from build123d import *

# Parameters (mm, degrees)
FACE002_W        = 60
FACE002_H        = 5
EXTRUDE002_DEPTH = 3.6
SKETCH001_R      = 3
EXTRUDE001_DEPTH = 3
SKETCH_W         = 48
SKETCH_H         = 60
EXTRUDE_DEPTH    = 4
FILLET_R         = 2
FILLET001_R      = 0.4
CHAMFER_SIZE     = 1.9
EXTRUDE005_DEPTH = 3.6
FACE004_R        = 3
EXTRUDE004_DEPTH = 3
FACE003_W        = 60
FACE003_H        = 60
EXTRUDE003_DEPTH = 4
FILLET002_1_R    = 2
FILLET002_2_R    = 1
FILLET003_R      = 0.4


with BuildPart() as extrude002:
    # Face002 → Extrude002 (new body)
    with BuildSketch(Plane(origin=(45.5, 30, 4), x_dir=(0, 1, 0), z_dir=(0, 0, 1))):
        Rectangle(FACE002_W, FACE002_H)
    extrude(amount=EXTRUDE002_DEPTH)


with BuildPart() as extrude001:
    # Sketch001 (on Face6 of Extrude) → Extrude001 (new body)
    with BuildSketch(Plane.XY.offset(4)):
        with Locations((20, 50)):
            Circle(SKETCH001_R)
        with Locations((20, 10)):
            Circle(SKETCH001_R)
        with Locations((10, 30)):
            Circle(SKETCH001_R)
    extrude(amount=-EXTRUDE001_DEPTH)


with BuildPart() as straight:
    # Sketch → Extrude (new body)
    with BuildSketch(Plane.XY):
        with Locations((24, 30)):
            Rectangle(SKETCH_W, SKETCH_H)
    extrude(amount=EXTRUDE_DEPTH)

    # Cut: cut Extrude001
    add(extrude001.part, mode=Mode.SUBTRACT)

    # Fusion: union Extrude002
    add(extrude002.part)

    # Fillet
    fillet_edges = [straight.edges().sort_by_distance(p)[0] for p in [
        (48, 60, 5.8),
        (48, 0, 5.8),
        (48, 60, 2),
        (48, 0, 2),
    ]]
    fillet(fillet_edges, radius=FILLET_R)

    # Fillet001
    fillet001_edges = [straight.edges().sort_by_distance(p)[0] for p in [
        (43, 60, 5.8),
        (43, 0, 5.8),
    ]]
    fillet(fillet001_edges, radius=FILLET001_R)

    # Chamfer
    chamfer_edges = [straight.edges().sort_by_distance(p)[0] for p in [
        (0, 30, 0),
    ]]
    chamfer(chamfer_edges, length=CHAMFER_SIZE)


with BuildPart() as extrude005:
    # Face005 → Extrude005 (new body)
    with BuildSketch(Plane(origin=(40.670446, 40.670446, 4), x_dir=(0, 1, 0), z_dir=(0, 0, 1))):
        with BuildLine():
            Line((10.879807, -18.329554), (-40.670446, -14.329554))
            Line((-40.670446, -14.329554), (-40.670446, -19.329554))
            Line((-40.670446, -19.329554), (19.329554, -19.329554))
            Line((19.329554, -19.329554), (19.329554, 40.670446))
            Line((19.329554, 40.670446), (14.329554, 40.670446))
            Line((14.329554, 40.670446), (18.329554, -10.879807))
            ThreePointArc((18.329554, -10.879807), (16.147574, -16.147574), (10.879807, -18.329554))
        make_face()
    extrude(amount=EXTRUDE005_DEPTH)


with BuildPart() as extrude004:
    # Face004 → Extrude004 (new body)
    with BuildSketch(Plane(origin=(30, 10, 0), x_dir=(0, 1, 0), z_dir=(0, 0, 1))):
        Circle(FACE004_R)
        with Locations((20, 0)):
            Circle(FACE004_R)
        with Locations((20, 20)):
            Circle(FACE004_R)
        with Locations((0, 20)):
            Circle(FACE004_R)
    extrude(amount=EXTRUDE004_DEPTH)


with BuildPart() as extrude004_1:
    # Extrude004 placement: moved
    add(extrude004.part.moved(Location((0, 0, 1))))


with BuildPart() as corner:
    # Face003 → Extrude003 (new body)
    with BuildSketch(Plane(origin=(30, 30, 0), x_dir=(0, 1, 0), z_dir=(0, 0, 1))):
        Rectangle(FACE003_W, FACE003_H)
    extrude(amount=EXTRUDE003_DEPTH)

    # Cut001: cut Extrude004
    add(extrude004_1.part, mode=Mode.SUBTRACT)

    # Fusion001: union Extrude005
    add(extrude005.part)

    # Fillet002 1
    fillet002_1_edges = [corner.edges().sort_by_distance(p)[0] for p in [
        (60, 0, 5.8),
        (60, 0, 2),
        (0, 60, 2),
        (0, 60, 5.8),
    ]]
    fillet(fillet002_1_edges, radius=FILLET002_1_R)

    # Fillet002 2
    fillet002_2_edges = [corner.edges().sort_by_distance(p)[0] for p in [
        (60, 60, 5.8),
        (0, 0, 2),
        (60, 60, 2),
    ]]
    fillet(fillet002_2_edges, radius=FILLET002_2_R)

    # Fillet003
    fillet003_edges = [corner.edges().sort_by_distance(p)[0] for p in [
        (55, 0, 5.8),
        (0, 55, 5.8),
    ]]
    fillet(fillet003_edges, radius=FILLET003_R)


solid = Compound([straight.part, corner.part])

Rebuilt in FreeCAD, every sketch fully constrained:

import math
import FreeCAD as App
import Part
import Sketcher
Q = App.Units.Quantity


def edges_at(feature, points):
    """Names of the edges that pass closest to the given points."""
    edges = feature.Shape.Edges
    near = lambda p: min(range(len(edges)), key=lambda i: edges[i].distToShape(Part.Vertex(*p))[0])
    return sorted({f"Edge{near(p) + 1}" for p in points})


def add_polygon(sketch, points):
    """Adds a closed chain of lines whose ends are joined by coincident constraints."""
    first, n = sketch.GeometryCount, len(points)
    for a, b in zip(points, points[1:] + points[:1]):
        sketch.addGeometry(Part.LineSegment(App.Vector(*a, 0), App.Vector(*b, 0)), False)
    for i in range(n):
        sketch.addConstraint(Sketcher.Constraint("Coincident", first + i, 2, first + (i + 1) % n, 1))

doc = App.newDocument("Part")
body = doc.addObject("PartDesign::Body", "Body")

# Sketch on XY plane
sketch1 = doc.addObject("Sketcher::SketchObject", "Sketch")
body.addObject(sketch1)
sketch1.AttachmentSupport = (doc.XY_Plane, [""])
sketch1.MapMode = "FlatFace"
sketch1.AttachmentOffset = App.Placement(App.Vector(0, 0, 4), App.Rotation())
add_polygon(sketch1, [(43, 0), (48, 0), (48, 60), (43, 60)])  # lines 0-3
sketch1.addConstraint([
    Sketcher.Constraint("Horizontal", 0),
    Sketcher.Constraint("Vertical", 1),
    Sketcher.Constraint("Horizontal", 2),
    Sketcher.Constraint("Vertical", 3),
    Sketcher.Constraint("PointOnObject", 0, 2, -1),
    Sketcher.Constraint("DistanceX", 0, 1, 0, 2, Q("5 mm")),
    Sketcher.Constraint("DistanceY", 1, 1, 1, 2, Q("60 mm")),
    Sketcher.Constraint("DistanceX", -1, 1, 0, 2, Q("48 mm")),
])
pad1 = doc.addObject("PartDesign::Pad", "Pad")
body.addObject(pad1)
pad1.Profile = sketch1
pad1.Length = 3.6
body2 = doc.addObject("PartDesign::Body", "Body001")
body2.AllowCompound = True

# Sketch on XY plane
sketch2 = doc.addObject("Sketcher::SketchObject", "Sketch001")
body2.addObject(sketch2)
sketch2.AttachmentSupport = (doc.getObject("XY_Plane001"), [""])
sketch2.MapMode = "FlatFace"
sketch2.AttachmentOffset = App.Placement(App.Vector(0, 0, 4), App.Rotation())
sketch2.addGeometry([
    Part.Circle(App.Vector(20, 50, 0), App.Vector(0, 0, 1), 3),
    Part.Circle(App.Vector(20, 10, 0), App.Vector(0, 0, 1), 3),
    Part.Circle(App.Vector(10, 30, 0), App.Vector(0, 0, 1), 3),
], False)
sketch2.addConstraint([
    Sketcher.Constraint("Equal", 0, 1),
    Sketcher.Constraint("Equal", 1, 2),
    Sketcher.Constraint("Vertical", 0, 3, 1, 3),
    Sketcher.Constraint("Diameter", 0, Q("6 mm")),
    Sketcher.Constraint("DistanceX", -1, 1, 0, 3, Q("20 mm")),
    Sketcher.Constraint("DistanceY", -1, 1, 0, 3, Q("50 mm")),
    Sketcher.Constraint("DistanceY", -1, 1, 1, 3, Q("10 mm")),
    Sketcher.Constraint("DistanceX", -1, 1, 2, 3, Q("10 mm")),
    Sketcher.Constraint("DistanceY", -1, 1, 2, 3, Q("30 mm")),
])
pad2 = doc.addObject("PartDesign::Pad", "Pad001")
body2.addObject(pad2)
pad2.Profile = sketch2
pad2.Length = 3
pad2.Reversed = True
body3 = doc.addObject("PartDesign::Body", "Body002")

# Sketch on XY plane
sketch3 = doc.addObject("Sketcher::SketchObject", "Sketch002")
body3.addObject(sketch3)
sketch3.AttachmentSupport = (doc.getObject("XY_Plane002"), [""])
sketch3.MapMode = "FlatFace"
add_polygon(sketch3, [(0, 60), (0, 0), (48, 0), (48, 60)])  # lines 0-3
sketch3.addConstraint([
    Sketcher.Constraint("Vertical", 0),
    Sketcher.Constraint("Horizontal", 1),
    Sketcher.Constraint("Vertical", 2),
    Sketcher.Constraint("Horizontal", 3),
    Sketcher.Constraint("Coincident", 0, 2, -1, 1),
    Sketcher.Constraint("DistanceX", 1, 1, 1, 2, Q("48 mm")),
    Sketcher.Constraint("DistanceY", 0, 2, 0, 1, Q("60 mm")),
])
pad3 = doc.addObject("PartDesign::Pad", "Pad002")
body3.addObject(pad3)
pad3.Profile = sketch3
pad3.Length = 4
doc.recompute()

boolean = doc.addObject("PartDesign::Boolean", "Boolean")
body3.addObject(boolean)
boolean.Type = "Cut"
boolean.addObjects([body2])
doc.recompute()

boolean2 = doc.addObject("PartDesign::Boolean", "Boolean001")
body3.addObject(boolean2)
boolean2.Type = "Fuse"
boolean2.addObjects([body])
doc.recompute()

fillet = doc.addObject("PartDesign::Fillet", "Fillet")
body3.addObject(fillet)
fillet.Base = (boolean2, edges_at(boolean2, [
    (48, 60, 3.8),
    (48, 0, 3.8),
    (48, 60, 3.8),
    (48, 0, 3.8),
]))
fillet.Radius = 2
doc.recompute()

fillet2 = doc.addObject("PartDesign::Fillet", "Fillet001")
body3.addObject(fillet2)
fillet2.Base = (fillet, edges_at(fillet, [(43, 60, 5.8), (43, 0, 5.8)]))
fillet2.Radius = 0.4
doc.recompute()

chamfer = doc.addObject("PartDesign::Chamfer", "Chamfer")
body3.addObject(chamfer)
chamfer.Base = (fillet2, edges_at(fillet2, [(0, 30, 0)]))
chamfer.Size = 1.9
body4 = doc.addObject("PartDesign::Body", "Body003")

# Sketch on XY plane
sketch4 = doc.addObject("Sketcher::SketchObject", "Sketch003")
body4.addObject(sketch4)
sketch4.AttachmentSupport = (doc.getObject("XY_Plane003"), [""])
sketch4.MapMode = "FlatFace"
sketch4.AttachmentOffset = App.Placement(App.Vector(0, 0, 4), App.Rotation())
sketch4.addGeometry([
    Part.LineSegment(App.Vector(59, 52, 0), App.Vector(55, 0, 0)),  # 0
    Part.LineSegment(App.Vector(55, 0, 0), App.Vector(60, 0, 0)),  # 1
    Part.LineSegment(App.Vector(60, 0, 0), App.Vector(60, 60, 0)),  # 2
    Part.LineSegment(App.Vector(60, 60, 0), App.Vector(0, 60, 0)),  # 3
    Part.LineSegment(App.Vector(0, 60, 0), App.Vector(0, 55, 0)),  # 4
    Part.LineSegment(App.Vector(0, 55, 0), App.Vector(52, 59, 0)),  # 5
    Part.ArcOfCircle(Part.Circle(App.Vector(52, 52, 0), App.Vector(0, 0, 1), 7), math.radians(0), math.radians(90)),  # 6
], False)
sketch4.addConstraint([
    Sketcher.Constraint("Coincident", 0, 2, 1, 1),
    Sketcher.Constraint("Coincident", 1, 2, 2, 1),
    Sketcher.Constraint("Coincident", 2, 2, 3, 1),
    Sketcher.Constraint("Coincident", 3, 2, 4, 1),
    Sketcher.Constraint("Coincident", 4, 2, 5, 1),
    Sketcher.Constraint("Coincident", 5, 2, 6, 2),
    Sketcher.Constraint("Coincident", 6, 1, 0, 1),
    Sketcher.Constraint("Horizontal", 1),
    Sketcher.Constraint("Vertical", 2),
    Sketcher.Constraint("Horizontal", 3),
    Sketcher.Constraint("Vertical", 4),
    Sketcher.Constraint("PointOnObject", 0, 2, -1),
    Sketcher.Constraint("PointOnObject", 3, 2, -2),
    Sketcher.Constraint("Vertical", 6, 3, 5, 2),
    Sketcher.Constraint("Equal", 3, 2),
    Sketcher.Constraint("Equal", 1, 4),
    Sketcher.Constraint("Equal", 0, 5),
    Sketcher.Constraint("DistanceX", 1, 1, 1, 2, Q("5 mm")),
    Sketcher.Constraint("DistanceX", 3, 2, 3, 1, Q("60 mm")),
    Sketcher.Constraint("DistanceY", -1, 1, 5, 2, Q("59 mm")),
    Sketcher.Constraint("DistanceX", -1, 1, 6, 1, Q("59 mm")),
    Sketcher.Constraint("Radius", 6, Q("7.449746 mm")),
])
pad4 = doc.addObject("PartDesign::Pad", "Pad003")
body4.addObject(pad4)
pad4.Profile = sketch4
pad4.Length = 3.6
body5 = doc.addObject("PartDesign::Body", "Body004")
body5.AllowCompound = True

# Sketch on XY plane
sketch5 = doc.addObject("Sketcher::SketchObject", "Sketch004")
body5.addObject(sketch5)
sketch5.AttachmentSupport = (doc.getObject("XY_Plane004"), [""])
sketch5.MapMode = "FlatFace"
sketch5.addGeometry([
    Part.Circle(App.Vector(30, 10, 0), App.Vector(0, 0, 1), 3),
    Part.Circle(App.Vector(30, 30, 0), App.Vector(0, 0, 1), 3),
    Part.Circle(App.Vector(10, 30, 0), App.Vector(0, 0, 1), 3),
    Part.Circle(App.Vector(10, 10, 0), App.Vector(0, 0, 1), 3),
], False)
sketch5.addConstraint([
    Sketcher.Constraint("Equal", 0, 1),
    Sketcher.Constraint("Equal", 1, 2),
    Sketcher.Constraint("Equal", 2, 3),
    Sketcher.Constraint("Horizontal", 1, 3, 2, 3),
    Sketcher.Constraint("Horizontal", 0, 3, 3, 3),
    Sketcher.Constraint("Vertical", 0, 3, 1, 3),
    Sketcher.Constraint("Vertical", 2, 3, 3, 3),
    Sketcher.Constraint("Diameter", 0, Q("6 mm")),
    Sketcher.Constraint("DistanceX", -1, 1, 0, 3, Q("30 mm")),
    Sketcher.Constraint("DistanceY", -1, 1, 0, 3, Q("10 mm")),
    Sketcher.Constraint("DistanceY", -1, 1, 1, 3, Q("30 mm")),
    Sketcher.Constraint("DistanceX", -1, 1, 2, 3, Q("10 mm")),
])
pad5 = doc.addObject("PartDesign::Pad", "Pad004")
body5.addObject(pad5)
pad5.Profile = sketch5
pad5.Length = 3
body6 = doc.addObject("PartDesign::Body", "Body005")
body6.AllowCompound = True
doc.recompute()

body5.Placement = App.Placement(App.Vector(0, 0, 1), App.Rotation(App.Vector(0, 0, 1), 0))
boolean3 = doc.addObject("PartDesign::Boolean", "Boolean002")
body6.addObject(boolean3)
boolean3.Type = "Fuse"
boolean3.addObjects([body5])
body7 = doc.addObject("PartDesign::Body", "Body006")

# Sketch on XY plane
sketch6 = doc.addObject("Sketcher::SketchObject", "Sketch005")
body7.addObject(sketch6)
sketch6.AttachmentSupport = (doc.getObject("XY_Plane006"), [""])
sketch6.MapMode = "FlatFace"
add_polygon(sketch6, [(0, 0), (60, 0), (60, 60), (0, 60)])  # lines 0-3
sketch6.addConstraint([
    Sketcher.Constraint("Horizontal", 0),
    Sketcher.Constraint("Vertical", 1),
    Sketcher.Constraint("Horizontal", 2),
    Sketcher.Constraint("Vertical", 3),
    Sketcher.Constraint("Coincident", 3, 2, -1, 1),
    Sketcher.Constraint("Equal", 2, 1),
    Sketcher.Constraint("DistanceX", 0, 1, 0, 2, Q("60 mm")),
])
pad6 = doc.addObject("PartDesign::Pad", "Pad005")
body7.addObject(pad6)
pad6.Profile = sketch6
pad6.Length = 4
doc.recompute()

boolean4 = doc.addObject("PartDesign::Boolean", "Boolean003")
body7.addObject(boolean4)
boolean4.Type = "Cut"
boolean4.addObjects([body6])
doc.recompute()

boolean5 = doc.addObject("PartDesign::Boolean", "Boolean004")
body7.addObject(boolean5)
boolean5.Type = "Fuse"
boolean5.addObjects([body4])
doc.recompute()

fillet3 = doc.addObject("PartDesign::Fillet", "Fillet002")
body7.addObject(fillet3)
fillet3.Base = (boolean5, edges_at(boolean5, [
    (60, 0, 3.8),
    (60, 0, 3.8),
    (0, 60, 3.8),
    (0, 60, 3.8),
]))
fillet3.Radius = 2
doc.recompute()

fillet4 = doc.addObject("PartDesign::Fillet", "Fillet003")
body7.addObject(fillet4)
fillet4.Base = (fillet3, edges_at(fillet3, [(60, 60, 3.8), (0, 0, 2), (60, 60, 3.8)]))
fillet4.Radius = 1
doc.recompute()

fillet5 = doc.addObject("PartDesign::Fillet", "Fillet004")
body7.addObject(fillet5)
fillet5.Base = (fillet4, edges_at(fillet4, [(55, 0, 5.8), (0, 55, 5.8)]))
fillet5.Radius = 0.4

doc.recompute()
